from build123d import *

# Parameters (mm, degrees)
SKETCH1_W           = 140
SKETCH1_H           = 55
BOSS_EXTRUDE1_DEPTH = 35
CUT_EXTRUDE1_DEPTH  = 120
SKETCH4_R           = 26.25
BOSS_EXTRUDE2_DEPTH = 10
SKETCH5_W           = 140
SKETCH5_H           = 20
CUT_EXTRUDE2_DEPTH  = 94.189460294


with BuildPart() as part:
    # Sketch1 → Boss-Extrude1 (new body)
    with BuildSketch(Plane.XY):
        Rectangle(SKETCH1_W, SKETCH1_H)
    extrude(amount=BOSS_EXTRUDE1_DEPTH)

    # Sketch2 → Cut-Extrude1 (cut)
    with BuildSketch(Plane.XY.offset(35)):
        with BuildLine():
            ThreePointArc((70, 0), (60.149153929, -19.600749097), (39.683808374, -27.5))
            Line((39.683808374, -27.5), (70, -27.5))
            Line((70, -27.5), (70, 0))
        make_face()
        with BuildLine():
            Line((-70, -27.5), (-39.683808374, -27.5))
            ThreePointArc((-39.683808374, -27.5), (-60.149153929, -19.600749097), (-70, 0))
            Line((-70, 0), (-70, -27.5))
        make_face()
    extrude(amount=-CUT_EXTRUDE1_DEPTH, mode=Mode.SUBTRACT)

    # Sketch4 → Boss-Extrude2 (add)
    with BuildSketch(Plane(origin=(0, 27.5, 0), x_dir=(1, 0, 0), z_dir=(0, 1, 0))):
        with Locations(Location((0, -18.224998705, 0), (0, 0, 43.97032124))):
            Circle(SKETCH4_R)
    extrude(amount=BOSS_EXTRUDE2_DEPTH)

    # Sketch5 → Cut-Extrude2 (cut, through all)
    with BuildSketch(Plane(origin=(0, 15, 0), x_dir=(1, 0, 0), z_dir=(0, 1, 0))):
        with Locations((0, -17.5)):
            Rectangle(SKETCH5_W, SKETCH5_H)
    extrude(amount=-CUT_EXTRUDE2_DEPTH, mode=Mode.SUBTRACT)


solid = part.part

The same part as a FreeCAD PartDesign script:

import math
import FreeCAD as App
import Part
import Sketcher
Q = App.Units.Quantity

doc = App.newDocument("Part")
body = doc.addObject("PartDesign::Body", "Body")

# Sketch on XY plane
sketch1 = body.newObject("Sketcher::SketchObject", "Sketch")
sketch1.AttachmentSupport = (doc.getObject("XY_Plane"), [""])
sketch1.MapMode = "FlatFace"
sketch1.addGeometry([
    Part.LineSegment(App.Vector(-70, 27.5, 0), App.Vector(-70, -27.5, 0)),
    Part.LineSegment(App.Vector(-70, -27.5, 0), App.Vector(70, -27.5, 0)),
    Part.LineSegment(App.Vector(70, -27.5, 0), App.Vector(70, 27.5, 0)),
    Part.LineSegment(App.Vector(70, 27.5, 0), App.Vector(-70, 27.5, 0)),
], False)
sketch1.addConstraint([
    Sketcher.Constraint("Coincident", 0, 2, 1, 1),
    Sketcher.Constraint("Coincident", 1, 2, 2, 1),
    Sketcher.Constraint("Coincident", 2, 2, 3, 1),
    Sketcher.Constraint("Coincident", 3, 2, 0, 1),
    Sketcher.Constraint("Vertical", 0),
    Sketcher.Constraint("Horizontal", 1),
    Sketcher.Constraint("Vertical", 2),
    Sketcher.Constraint("Horizontal", 3),
    Sketcher.Constraint("Symmetric", 0, 2, 2, 2, -1, 1),
    Sketcher.Constraint("DistanceX", 1, 1, 1, 2, Q("140 mm")),
    Sketcher.Constraint("DistanceY", 0, 2, 0, 1, Q("55 mm")),
])
pad1 = body.newObject("PartDesign::Pad", "Pad")
pad1.Profile = sketch1
pad1.Length = 35

# Sketch on XY plane
sketch2 = body.newObject("Sketcher::SketchObject", "Sketch001")
sketch2.AttachmentSupport = (doc.getObject("XY_Plane"), [""])
sketch2.MapMode = "FlatFace"
sketch2.AttachmentOffset = App.Placement(App.Vector(0, 0, 35), App.Rotation())
sketch2.addGeometry([
    Part.ArcOfCircle(Part.Circle(App.Vector(39.683808, 2.96039, 0), App.Vector(0, 0, 1), 30.46039), math.radians(-90), math.radians(-5.577277)),  # 0
    Part.LineSegment(App.Vector(39.683808, -27.5, 0), App.Vector(70, -27.5, 0)),  # 1
    Part.LineSegment(App.Vector(70, -27.5, 0), App.Vector(70, 0, 0)),  # 2
    Part.LineSegment(App.Vector(-70, -27.5, 0), App.Vector(-39.683808, -27.5, 0)),  # 3
    Part.ArcOfCircle(Part.Circle(App.Vector(-39.683808, 2.96039, 0), App.Vector(0, 0, 1), 30.46039), math.radians(-174.422723), math.radians(-90)),  # 4
    Part.LineSegment(App.Vector(-70, 0, 0), App.Vector(-70, -27.5, 0)),  # 5
], False)
sketch2.addConstraint([
    Sketcher.Constraint("Tangent", 0, 1, 1, 1),
    Sketcher.Constraint("Coincident", 1, 2, 2, 1),
    Sketcher.Constraint("Coincident", 2, 2, 0, 2),
    Sketcher.Constraint("Tangent", 3, 2, 4, 2),
    Sketcher.Constraint("Coincident", 4, 1, 5, 1),
    Sketcher.Constraint("Coincident", 5, 2, 3, 1),
    Sketcher.Constraint("Horizontal", 1),
    Sketcher.Constraint("Vertical", 2),
    Sketcher.Constraint("Horizontal", 3),
    Sketcher.Constraint("Vertical", 5),
    Sketcher.Constraint("Equal", 0, 4),
    Sketcher.Constraint("Symmetric", 2, 2, 4, 1, -1, 1),
    Sketcher.Constraint("Symmetric", 0, 3, 4, 3, -2),
    Sketcher.Constraint("DistanceY", 2, 1, 2, 2, Q("27.5 mm")),
    Sketcher.Constraint("DistanceX", -1, 1, 1, 2, Q("70 mm")),
    Sketcher.Constraint("Radius", 0, Q("30.46039 mm")),
])
pocket1 = body.newObject("PartDesign::Pocket", "Pocket")
pocket1.Profile = sketch2
pocket1.Length = 120

# Sketch on XZ plane
sketch3 = body.newObject("Sketcher::SketchObject", "Sketch002")
sketch3.AttachmentSupport = (doc.getObject("XZ_Plane"), [""])
sketch3.MapMode = "FlatFace"
sketch3.AttachmentOffset = App.Placement(App.Vector(0, 0, -27.5), App.Rotation())
sketch3.addGeometry(Part.Circle(App.Vector(0, 18.224999, 0), App.Vector(0, 0, 1), 26.25), False)
sketch3.addConstraint([
    Sketcher.Constraint("PointOnObject", 0, 3, -2),
    Sketcher.Constraint("Diameter", 0, Q("52.5 mm")),
    Sketcher.Constraint("DistanceY", -1, 1, 0, 3, Q("18.224999 mm")),
])
pad2 = body.newObject("PartDesign::Pad", "Pad001")
pad2.Profile = sketch3
pad2.Length = 10
pad2.Reversed = True

# Sketch on XZ plane
sketch4 = body.newObject("Sketcher::SketchObject", "Sketch003")
sketch4.AttachmentSupport = (doc.getObject("XZ_Plane"), [""])
sketch4.MapMode = "FlatFace"
sketch4.AttachmentOffset = App.Placement(App.Vector(0, 0, -15), App.Rotation())
sketch4.addGeometry([
    Part.LineSegment(App.Vector(-70, 7.5, 0), App.Vector(-70, 27.5, 0)),
    Part.LineSegment(App.Vector(-70, 27.5, 0), App.Vector(70, 27.5, 0)),
    Part.LineSegment(App.Vector(70, 27.5, 0), App.Vector(70, 7.5, 0)),
    Part.LineSegment(App.Vector(70, 7.5, 0), App.Vector(-70, 7.5, 0)),
], False)
sketch4.addConstraint([
    Sketcher.Constraint("Coincident", 0, 2, 1, 1),
    Sketcher.Constraint("Coincident", 1, 2, 2, 1),
    Sketcher.Constraint("Coincident", 2, 2, 3, 1),
    Sketcher.Constraint("Coincident", 3, 2, 0, 1),
    Sketcher.Constraint("Vertical", 0),
    Sketcher.Constraint("Horizontal", 1),
    Sketcher.Constraint("Vertical", 2),
    Sketcher.Constraint("Horizontal", 3),
    Sketcher.Constraint("DistanceX", 1, 1, 1, 2, Q("140 mm")),
    Sketcher.Constraint("DistanceY", 0, 1, 0, 2, Q("20 mm")),
    Sketcher.Constraint("DistanceX", 0, 2, -1, 1, Q("70 mm")),
    Sketcher.Constraint("DistanceY", -1, 1, 0, 2, Q("27.5 mm")),
])
pocket2 = body.newObject("PartDesign::Pocket", "Pocket001")
pocket2.Profile = sketch4
pocket2.Type = "ThroughAll"
pocket2.Reversed = True

doc.recompute()
